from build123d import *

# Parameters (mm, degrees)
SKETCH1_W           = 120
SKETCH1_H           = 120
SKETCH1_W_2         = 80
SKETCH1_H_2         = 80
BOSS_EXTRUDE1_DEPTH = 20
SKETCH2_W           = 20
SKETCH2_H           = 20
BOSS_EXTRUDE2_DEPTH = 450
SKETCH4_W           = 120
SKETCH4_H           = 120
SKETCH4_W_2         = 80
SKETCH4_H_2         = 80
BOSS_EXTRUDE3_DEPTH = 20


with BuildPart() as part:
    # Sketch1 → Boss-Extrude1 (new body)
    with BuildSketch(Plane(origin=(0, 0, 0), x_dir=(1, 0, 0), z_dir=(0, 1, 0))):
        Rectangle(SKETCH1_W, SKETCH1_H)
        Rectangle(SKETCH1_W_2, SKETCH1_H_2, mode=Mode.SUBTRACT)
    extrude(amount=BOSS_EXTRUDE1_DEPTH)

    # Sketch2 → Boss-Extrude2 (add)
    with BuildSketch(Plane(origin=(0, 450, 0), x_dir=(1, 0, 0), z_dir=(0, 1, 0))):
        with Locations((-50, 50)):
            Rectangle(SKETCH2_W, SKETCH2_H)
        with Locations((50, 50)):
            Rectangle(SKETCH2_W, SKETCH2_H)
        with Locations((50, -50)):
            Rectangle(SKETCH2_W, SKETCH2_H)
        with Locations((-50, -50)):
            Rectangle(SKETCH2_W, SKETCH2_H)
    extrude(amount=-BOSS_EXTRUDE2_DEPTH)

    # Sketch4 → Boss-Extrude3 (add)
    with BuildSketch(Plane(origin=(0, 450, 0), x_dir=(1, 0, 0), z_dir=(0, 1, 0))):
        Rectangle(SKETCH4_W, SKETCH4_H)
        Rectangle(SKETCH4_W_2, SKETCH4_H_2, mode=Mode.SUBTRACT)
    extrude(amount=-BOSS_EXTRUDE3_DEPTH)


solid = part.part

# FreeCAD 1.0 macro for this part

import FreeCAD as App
import Part
import Sketcher
from FreeCAD import Vector
Q = App.Units.Quantity

doc = App.newDocument("Part")
body = doc.addObject("PartDesign::Body", "Body")

# Sketch on XZ plane
sketch1 = body.newObject("Sketcher::SketchObject", "Sketch")
sketch1.AttachmentSupport = (doc.getObject("XZ_Plane"), [""])
sketch1.MapMode = "FlatFace"
sketch1.addGeometry([
    Part.LineSegment(Vector(-60, -60, 0), Vector(-60, 60, 0)),  # 0
    Part.LineSegment(Vector(-60, 60, 0), Vector(60, 60, 0)),  # 1
    Part.LineSegment(Vector(60, 60, 0), Vector(60, -60, 0)),  # 2
    Part.LineSegment(Vector(60, -60, 0), Vector(-60, -60, 0)),  # 3
    Part.LineSegment(Vector(40, 40, 0), Vector(-40, 40, 0)),  # 4
    Part.LineSegment(Vector(-40, 40, 0), Vector(-40, -40, 0)),  # 5
    Part.LineSegment(Vector(-40, -40, 0), Vector(40, -40, 0)),  # 6
    Part.LineSegment(Vector(40, -40, 0), Vector(40, 40, 0)),  # 7
], False)
sketch1.addConstraint([
    Sketcher.Constraint("Coincident", 0, 2, 1, 1),
    Sketcher.Constraint("Coincident", 1, 2, 2, 1),
    Sketcher.Constraint("Coincident", 2, 2, 3, 1),
    Sketcher.Constraint("Coincident", 3, 2, 0, 1),
    Sketcher.Constraint("Coincident", 4, 2, 5, 1),
    Sketcher.Constraint("Coincident", 5, 2, 6, 1),
    Sketcher.Constraint("Coincident", 6, 2, 7, 1),
    Sketcher.Constraint("Coincident", 7, 2, 4, 1),
    Sketcher.Constraint("Vertical", 0),
    Sketcher.Constraint("Horizontal", 1),
    Sketcher.Constraint("Vertical", 2),
    Sketcher.Constraint("Horizontal", 3),
    Sketcher.Constraint("Horizontal", 4),
    Sketcher.Constraint("Vertical", 5),
    Sketcher.Constraint("Horizontal", 6),
    Sketcher.Constraint("Vertical", 7),
    Sketcher.Constraint("Symmetric", 0, 2, 2, 2, -1, 1),
    Sketcher.Constraint("Symmetric", 4, 2, 6, 2, -1, 1),
    Sketcher.Constraint("Equal", 3, 0),
    Sketcher.Constraint("Equal", 6, 5),
    Sketcher.Constraint("DistanceX", 1, 1, 1, 2, Q("120 mm")),
    Sketcher.Constraint("DistanceX", 4, 2, 4, 1, Q("80 mm")),
])
pad1 = body.newObject("PartDesign::Pad", "Pad")
pad1.Profile = sketch1
pad1.Length = 20
pad1.Reversed = True

# Sketch on XZ plane
sketch2 = body.newObject("Sketcher::SketchObject", "Sketch001")
sketch2.AttachmentSupport = (doc.getObject("XZ_Plane"), [""])
sketch2.MapMode = "FlatFace"
sketch2.AttachmentOffset = App.Placement(Vector(0, 0, -450), App.Rotation())
sketch2.addGeometry([
    Part.LineSegment(Vector(-60, -60, 0), Vector(-60, -40, 0)),  # 0
    Part.LineSegment(Vector(-60, -40, 0), Vector(-40, -40, 0)),  # 1
    Part.LineSegment(Vector(-40, -40, 0), Vector(-40, -60, 0)),  # 2
    Part.LineSegment(Vector(-40, -60, 0), Vector(-60, -60, 0)),  # 3
    Part.LineSegment(Vector(40, -60, 0), Vector(40, -40, 0)),  # 4
    Part.LineSegment(Vector(40, -40, 0), Vector(60, -40, 0)),  # 5
    Part.LineSegment(Vector(60, -40, 0), Vector(60, -60, 0)),  # 6
    Part.LineSegment(Vector(60, -60, 0), Vector(40, -60, 0)),  # 7
    Part.LineSegment(Vector(40, 40, 0), Vector(40, 60, 0)),  # 8
    Part.LineSegment(Vector(40, 60, 0), Vector(60, 60, 0)),  # 9
    Part.LineSegment(Vector(60, 60, 0), Vector(60, 40, 0)),  # 10
    Part.LineSegment(Vector(60, 40, 0), Vector(40, 40, 0)),  # 11
    Part.LineSegment(Vector(-60, 40, 0), Vector(-60, 60, 0)),  # 12
    Part.LineSegment(Vector(-60, 60, 0), Vector(-40, 60, 0)),  # 13
    Part.LineSegment(Vector(-40, 60, 0), Vector(-40, 40, 0)),  # 14
    Part.LineSegment(Vector(-40, 40, 0), Vector(-60, 40, 0)),  # 15
], False)
sketch2.addConstraint([
    Sketcher.Constraint("Coincident", 0, 2, 1, 1),
    Sketcher.Constraint("Coincident", 1, 2, 2, 1),
    Sketcher.Constraint("Coincident", 2, 2, 3, 1),
    Sketcher.Constraint("Coincident", 3, 2, 0, 1),
    Sketcher.Constraint("Coincident", 4, 2, 5, 1),
    Sketcher.Constraint("Coincident", 5, 2, 6, 1),
    Sketcher.Constraint("Coincident", 6, 2, 7, 1),
    Sketcher.Constraint("Coincident", 7, 2, 4, 1),
    Sketcher.Constraint("Coincident", 8, 2, 9, 1),
    Sketcher.Constraint("Coincident", 9, 2, 10, 1),
    Sketcher.Constraint("Coincident", 10, 2, 11, 1),
    Sketcher.Constraint("Coincident", 11, 2, 8, 1),
    Sketcher.Constraint("Coincident", 12, 2, 13, 1),
    Sketcher.Constraint("Coincident", 13, 2, 14, 1),
    Sketcher.Constraint("Coincident", 14, 2, 15, 1),
    Sketcher.Constraint("Coincident", 15, 2, 12, 1),
    Sketcher.Constraint("Vertical", 0),
    Sketcher.Constraint("Horizontal", 1),
    Sketcher.Constraint("Vertical", 2),
    Sketcher.Constraint("Horizontal", 3),
    Sketcher.Constraint("Vertical", 4),
    Sketcher.Constraint("Horizontal", 5),
    Sketcher.Constraint("Vertical", 6),
    Sketcher.Constraint("Horizontal", 7),
    Sketcher.Constraint("Vertical", 8),
    Sketcher.Constraint("Horizontal", 9),
    Sketcher.Constraint("Vertical", 10),
    Sketcher.Constraint("Horizontal", 11),
    Sketcher.Constraint("Vertical", 12),
    Sketcher.Constraint("Horizontal", 13),
    Sketcher.Constraint("Vertical", 14),
    Sketcher.Constraint("Horizontal", 15),
    Sketcher.Constraint("Symmetric", 2, 2, 8, 2, -1, 1),
    Sketcher.Constraint("Symmetric", 0, 2, 10, 2, -1, 1),
    Sketcher.Constraint("Symmetric", 6, 2, 12, 2, -1, 1),
    Sketcher.Constraint("Symmetric", 4, 2, 14, 2, -1, 1),
    Sketcher.Constraint("Symmetric", 1, 2, 4, 2, -2),
    Sketcher.Constraint("Symmetric", 3, 2, 6, 2, -2),
    Sketcher.Constraint("Equal", 15, 0),
    Sketcher.Constraint("DistanceX", 1, 1, 1, 2, Q("20 mm")),
    Sketcher.Constraint("DistanceX", 0, 2, -1, 1, Q("60 mm")),
    Sketcher.Constraint("DistanceY", 0, 2, -1, 1, Q("40 mm")),
])
pad2 = body.newObject("PartDesign::Pad", "Pad001")
pad2.Profile = sketch2
pad2.Length = 450

# Sketch on XZ plane
sketch3 = body.newObject("Sketcher::SketchObject", "Sketch002")
sketch3.AttachmentSupport = (doc.getObject("XZ_Plane"), [""])
sketch3.MapMode = "FlatFace"
sketch3.AttachmentOffset = App.Placement(Vector(0, 0, -450), App.Rotation())
sketch3.addGeometry([
    Part.LineSegment(Vector(-60, -60, 0), Vector(-60, 60, 0)),  # 0
    Part.LineSegment(Vector(-60, 60, 0), Vector(60, 60, 0)),  # 1
    Part.LineSegment(Vector(60, 60, 0), Vector(60, -60, 0)),  # 2
    Part.LineSegment(Vector(60, -60, 0), Vector(-60, -60, 0)),  # 3
    Part.LineSegment(Vector(40, 40, 0), Vector(-40, 40, 0)),  # 4
    Part.LineSegment(Vector(-40, 40, 0), Vector(-40, -40, 0)),  # 5
    Part.LineSegment(Vector(-40, -40, 0), Vector(40, -40, 0)),  # 6
    Part.LineSegment(Vector(40, -40, 0), Vector(40, 40, 0)),  # 7
], False)
sketch3.addConstraint([
    Sketcher.Constraint("Coincident", 0, 2, 1, 1),
    Sketcher.Constraint("Coincident", 1, 2, 2, 1),
    Sketcher.Constraint("Coincident", 2, 2, 3, 1),
    Sketcher.Constraint("Coincident", 3, 2, 0, 1),
    Sketcher.Constraint("Coincident", 4, 2, 5, 1),
    Sketcher.Constraint("Coincident", 5, 2, 6, 1),
    Sketcher.Constraint("Coincident", 6, 2, 7, 1),
    Sketcher.Constraint("Coincident", 7, 2, 4, 1),
    Sketcher.Constraint("Vertical", 0),
    Sketcher.Constraint("Horizontal", 1),
    Sketcher.Constraint("Vertical", 2),
    Sketcher.Constraint("Horizontal", 3),
    Sketcher.Constraint("Horizontal", 4),
    Sketcher.Constraint("Vertical", 5),
    Sketcher.Constraint("Horizontal", 6),
    Sketcher.Constraint("Vertical", 7),
    Sketcher.Constraint("Symmetric", 0, 2, 2, 2, -1, 1),
    Sketcher.Constraint("Symmetric", 4, 2, 6, 2, -1, 1),
    Sketcher.Constraint("Equal", 3, 0),
    Sketcher.Constraint("Equal", 6, 5),
    Sketcher.Constraint("DistanceX", 1, 1, 1, 2, Q("120 mm")),
    Sketcher.Constraint("DistanceX", 4, 2, 4, 1, Q("80 mm")),
])
pad3 = body.newObject("PartDesign::Pad", "Pad002")
pad3.Profile = sketch3
pad3.Length = 20

doc.recompute()
